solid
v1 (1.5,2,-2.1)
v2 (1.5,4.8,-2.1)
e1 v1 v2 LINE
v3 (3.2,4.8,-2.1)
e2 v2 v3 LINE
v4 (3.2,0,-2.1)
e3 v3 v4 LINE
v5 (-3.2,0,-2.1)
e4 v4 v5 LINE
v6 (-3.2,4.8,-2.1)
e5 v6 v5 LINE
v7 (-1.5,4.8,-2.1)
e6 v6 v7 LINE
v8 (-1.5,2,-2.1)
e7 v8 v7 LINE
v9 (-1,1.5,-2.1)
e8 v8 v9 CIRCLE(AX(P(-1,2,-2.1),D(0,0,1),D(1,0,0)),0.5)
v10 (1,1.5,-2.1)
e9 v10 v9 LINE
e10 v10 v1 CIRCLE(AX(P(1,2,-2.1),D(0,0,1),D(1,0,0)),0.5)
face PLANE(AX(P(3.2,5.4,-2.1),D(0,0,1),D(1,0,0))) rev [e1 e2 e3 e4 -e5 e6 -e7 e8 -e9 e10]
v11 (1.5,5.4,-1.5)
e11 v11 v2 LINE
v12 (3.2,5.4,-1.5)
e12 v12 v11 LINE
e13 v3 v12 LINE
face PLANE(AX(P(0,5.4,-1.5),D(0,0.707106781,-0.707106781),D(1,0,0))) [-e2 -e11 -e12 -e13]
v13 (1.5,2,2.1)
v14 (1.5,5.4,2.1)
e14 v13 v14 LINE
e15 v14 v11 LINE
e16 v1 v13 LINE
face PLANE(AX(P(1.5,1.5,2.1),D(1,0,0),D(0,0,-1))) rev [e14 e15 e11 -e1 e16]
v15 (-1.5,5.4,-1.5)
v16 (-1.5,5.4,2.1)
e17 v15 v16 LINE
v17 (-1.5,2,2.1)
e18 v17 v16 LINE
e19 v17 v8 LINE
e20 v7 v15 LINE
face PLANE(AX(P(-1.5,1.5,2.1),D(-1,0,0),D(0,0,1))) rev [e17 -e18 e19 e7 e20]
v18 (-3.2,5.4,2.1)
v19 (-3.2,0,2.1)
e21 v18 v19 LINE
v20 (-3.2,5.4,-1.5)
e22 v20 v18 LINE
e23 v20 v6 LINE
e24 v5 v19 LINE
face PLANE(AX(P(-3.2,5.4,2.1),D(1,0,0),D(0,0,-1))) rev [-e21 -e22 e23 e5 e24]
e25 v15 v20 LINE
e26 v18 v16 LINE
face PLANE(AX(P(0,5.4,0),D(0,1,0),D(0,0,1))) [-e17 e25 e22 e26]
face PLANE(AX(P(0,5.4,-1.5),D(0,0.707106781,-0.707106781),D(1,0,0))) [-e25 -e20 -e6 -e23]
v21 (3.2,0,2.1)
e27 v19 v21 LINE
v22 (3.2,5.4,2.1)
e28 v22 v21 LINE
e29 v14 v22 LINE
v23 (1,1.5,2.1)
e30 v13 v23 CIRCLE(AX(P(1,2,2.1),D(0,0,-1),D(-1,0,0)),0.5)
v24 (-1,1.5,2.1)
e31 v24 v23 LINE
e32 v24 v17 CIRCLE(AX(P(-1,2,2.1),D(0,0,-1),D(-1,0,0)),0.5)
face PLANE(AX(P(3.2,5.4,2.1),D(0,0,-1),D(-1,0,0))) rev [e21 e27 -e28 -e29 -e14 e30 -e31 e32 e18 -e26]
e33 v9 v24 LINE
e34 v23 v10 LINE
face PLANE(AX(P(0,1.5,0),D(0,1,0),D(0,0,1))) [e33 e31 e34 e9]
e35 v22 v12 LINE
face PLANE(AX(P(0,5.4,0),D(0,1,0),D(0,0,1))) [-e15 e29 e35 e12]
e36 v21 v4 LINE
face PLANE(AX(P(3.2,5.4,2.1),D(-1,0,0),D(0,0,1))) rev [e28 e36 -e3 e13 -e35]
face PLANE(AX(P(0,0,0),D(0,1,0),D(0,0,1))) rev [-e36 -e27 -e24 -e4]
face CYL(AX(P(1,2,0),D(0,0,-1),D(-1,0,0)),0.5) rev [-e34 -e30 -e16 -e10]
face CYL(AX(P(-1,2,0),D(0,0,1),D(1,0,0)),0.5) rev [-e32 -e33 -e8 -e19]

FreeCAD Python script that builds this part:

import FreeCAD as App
import Part
import Sketcher
Q = App.Units.Quantity


def edges_at(feature, points):
    """Names of the edges that pass closest to the given points."""
    edges = feature.Shape.Edges
    near = lambda p: min(range(len(edges)), key=lambda i: edges[i].distToShape(Part.Vertex(*p))[0])
    return sorted({f"Edge{near(p) + 1}" for p in points})

doc = App.newDocument("Part")
body = doc.addObject("PartDesign::Body", "Body")

# Sketch on XZ plane
sketch1 = body.newObject("Sketcher::SketchObject", "Sketch")
sketch1.AttachmentSupport = (doc.getObject("XZ_Plane"), [""])
sketch1.MapMode = "FlatFace"
sketch1.addGeometry([
    Part.LineSegment(App.Vector(-3.2, -2.1, 0), App.Vector(-3.2, 2.1, 0)),
    Part.LineSegment(App.Vector(-3.2, 2.1, 0), App.Vector(3.2, 2.1, 0)),
    Part.LineSegment(App.Vector(3.2, 2.1, 0), App.Vector(3.2, -2.1, 0)),
    Part.LineSegment(App.Vector(3.2, -2.1, 0), App.Vector(-3.2, -2.1, 0)),
], False)
sketch1.addConstraint([
    Sketcher.Constraint("Coincident", 0, 2, 1, 1),
    Sketcher.Constraint("Coincident", 1, 2, 2, 1),
    Sketcher.Constraint("Coincident", 2, 2, 3, 1),
    Sketcher.Constraint("Coincident", 3, 2, 0, 1),
    Sketcher.Constraint("Vertical", 0),
    Sketcher.Constraint("Horizontal", 1),
    Sketcher.Constraint("Vertical", 2),
    Sketcher.Constraint("Horizontal", 3),
    Sketcher.Constraint("Symmetric", 0, 2, 2, 2, -1, 1),
    Sketcher.Constraint("DistanceX", 1, 1, 1, 2, Q("6.4 mm")),
    Sketcher.Constraint("DistanceY", 0, 1, 0, 2, Q("4.2 mm")),
])
pad1 = body.newObject("PartDesign::Pad", "Pad")
pad1.Profile = sketch1
pad1.Length = 5.4
pad1.Reversed = True

# Sketch on XZ plane
sketch2 = body.newObject("Sketcher::SketchObject", "Sketch001")
sketch2.AttachmentSupport = (doc.getObject("XZ_Plane"), [""])
sketch2.MapMode = "FlatFace"
sketch2.AttachmentOffset = App.Placement(App.Vector(0, 0, -5.4), App.Rotation())
sketch2.addGeometry([
    Part.LineSegment(App.Vector(-1.5, -2.1, 0), App.Vector(-1.5, 2.1, 0)),
    Part.LineSegment(App.Vector(-1.5, 2.1, 0), App.Vector(1.5, 2.1, 0)),
    Part.LineSegment(App.Vector(1.5, 2.1, 0), App.Vector(1.5, -2.1, 0)),
    Part.LineSegment(App.Vector(1.5, -2.1, 0), App.Vector(-1.5, -2.1, 0)),
], False)
sketch2.addConstraint([
    Sketcher.Constraint("Coincident", 0, 2, 1, 1),
    Sketcher.Constraint("Coincident", 1, 2, 2, 1),
    Sketcher.Constraint("Coincident", 2, 2, 3, 1),
    Sketcher.Constraint("Coincident", 3, 2, 0, 1),
    Sketcher.Constraint("Vertical", 0),
    Sketcher.Constraint("Horizontal", 1),
    Sketcher.Constraint("Vertical", 2),
    Sketcher.Constraint("Horizontal", 3),
    Sketcher.Constraint("Symmetric", 0, 2, 2, 2, -1, 1),
    Sketcher.Constraint("DistanceX", 1, 1, 1, 2, Q("3 mm")),
    Sketcher.Constraint("DistanceY", 0, 1, 0, 2, Q("4.2 mm")),
])
pocket1 = body.newObject("PartDesign::Pocket", "Pocket")
pocket1.Profile = sketch2
pocket1.Length = 3.9
pocket1.Reversed = True
doc.recompute()

fillet = body.newObject("PartDesign::Fillet", "Fillet")
fillet.Base = (pocket1, edges_at(pocket1, [(-1.5, 1.5, 0), (1.5, 1.5, 0)]))
fillet.Radius = 0.5
doc.recompute()

chamfer = body.newObject("PartDesign::Chamfer", "Chamfer")
chamfer.Base = (fillet, edges_at(fillet, [(2.35, 5.4, -2.1), (-2.35, 5.4, -2.1)]))
chamfer.Size = 0.6

doc.recompute()
